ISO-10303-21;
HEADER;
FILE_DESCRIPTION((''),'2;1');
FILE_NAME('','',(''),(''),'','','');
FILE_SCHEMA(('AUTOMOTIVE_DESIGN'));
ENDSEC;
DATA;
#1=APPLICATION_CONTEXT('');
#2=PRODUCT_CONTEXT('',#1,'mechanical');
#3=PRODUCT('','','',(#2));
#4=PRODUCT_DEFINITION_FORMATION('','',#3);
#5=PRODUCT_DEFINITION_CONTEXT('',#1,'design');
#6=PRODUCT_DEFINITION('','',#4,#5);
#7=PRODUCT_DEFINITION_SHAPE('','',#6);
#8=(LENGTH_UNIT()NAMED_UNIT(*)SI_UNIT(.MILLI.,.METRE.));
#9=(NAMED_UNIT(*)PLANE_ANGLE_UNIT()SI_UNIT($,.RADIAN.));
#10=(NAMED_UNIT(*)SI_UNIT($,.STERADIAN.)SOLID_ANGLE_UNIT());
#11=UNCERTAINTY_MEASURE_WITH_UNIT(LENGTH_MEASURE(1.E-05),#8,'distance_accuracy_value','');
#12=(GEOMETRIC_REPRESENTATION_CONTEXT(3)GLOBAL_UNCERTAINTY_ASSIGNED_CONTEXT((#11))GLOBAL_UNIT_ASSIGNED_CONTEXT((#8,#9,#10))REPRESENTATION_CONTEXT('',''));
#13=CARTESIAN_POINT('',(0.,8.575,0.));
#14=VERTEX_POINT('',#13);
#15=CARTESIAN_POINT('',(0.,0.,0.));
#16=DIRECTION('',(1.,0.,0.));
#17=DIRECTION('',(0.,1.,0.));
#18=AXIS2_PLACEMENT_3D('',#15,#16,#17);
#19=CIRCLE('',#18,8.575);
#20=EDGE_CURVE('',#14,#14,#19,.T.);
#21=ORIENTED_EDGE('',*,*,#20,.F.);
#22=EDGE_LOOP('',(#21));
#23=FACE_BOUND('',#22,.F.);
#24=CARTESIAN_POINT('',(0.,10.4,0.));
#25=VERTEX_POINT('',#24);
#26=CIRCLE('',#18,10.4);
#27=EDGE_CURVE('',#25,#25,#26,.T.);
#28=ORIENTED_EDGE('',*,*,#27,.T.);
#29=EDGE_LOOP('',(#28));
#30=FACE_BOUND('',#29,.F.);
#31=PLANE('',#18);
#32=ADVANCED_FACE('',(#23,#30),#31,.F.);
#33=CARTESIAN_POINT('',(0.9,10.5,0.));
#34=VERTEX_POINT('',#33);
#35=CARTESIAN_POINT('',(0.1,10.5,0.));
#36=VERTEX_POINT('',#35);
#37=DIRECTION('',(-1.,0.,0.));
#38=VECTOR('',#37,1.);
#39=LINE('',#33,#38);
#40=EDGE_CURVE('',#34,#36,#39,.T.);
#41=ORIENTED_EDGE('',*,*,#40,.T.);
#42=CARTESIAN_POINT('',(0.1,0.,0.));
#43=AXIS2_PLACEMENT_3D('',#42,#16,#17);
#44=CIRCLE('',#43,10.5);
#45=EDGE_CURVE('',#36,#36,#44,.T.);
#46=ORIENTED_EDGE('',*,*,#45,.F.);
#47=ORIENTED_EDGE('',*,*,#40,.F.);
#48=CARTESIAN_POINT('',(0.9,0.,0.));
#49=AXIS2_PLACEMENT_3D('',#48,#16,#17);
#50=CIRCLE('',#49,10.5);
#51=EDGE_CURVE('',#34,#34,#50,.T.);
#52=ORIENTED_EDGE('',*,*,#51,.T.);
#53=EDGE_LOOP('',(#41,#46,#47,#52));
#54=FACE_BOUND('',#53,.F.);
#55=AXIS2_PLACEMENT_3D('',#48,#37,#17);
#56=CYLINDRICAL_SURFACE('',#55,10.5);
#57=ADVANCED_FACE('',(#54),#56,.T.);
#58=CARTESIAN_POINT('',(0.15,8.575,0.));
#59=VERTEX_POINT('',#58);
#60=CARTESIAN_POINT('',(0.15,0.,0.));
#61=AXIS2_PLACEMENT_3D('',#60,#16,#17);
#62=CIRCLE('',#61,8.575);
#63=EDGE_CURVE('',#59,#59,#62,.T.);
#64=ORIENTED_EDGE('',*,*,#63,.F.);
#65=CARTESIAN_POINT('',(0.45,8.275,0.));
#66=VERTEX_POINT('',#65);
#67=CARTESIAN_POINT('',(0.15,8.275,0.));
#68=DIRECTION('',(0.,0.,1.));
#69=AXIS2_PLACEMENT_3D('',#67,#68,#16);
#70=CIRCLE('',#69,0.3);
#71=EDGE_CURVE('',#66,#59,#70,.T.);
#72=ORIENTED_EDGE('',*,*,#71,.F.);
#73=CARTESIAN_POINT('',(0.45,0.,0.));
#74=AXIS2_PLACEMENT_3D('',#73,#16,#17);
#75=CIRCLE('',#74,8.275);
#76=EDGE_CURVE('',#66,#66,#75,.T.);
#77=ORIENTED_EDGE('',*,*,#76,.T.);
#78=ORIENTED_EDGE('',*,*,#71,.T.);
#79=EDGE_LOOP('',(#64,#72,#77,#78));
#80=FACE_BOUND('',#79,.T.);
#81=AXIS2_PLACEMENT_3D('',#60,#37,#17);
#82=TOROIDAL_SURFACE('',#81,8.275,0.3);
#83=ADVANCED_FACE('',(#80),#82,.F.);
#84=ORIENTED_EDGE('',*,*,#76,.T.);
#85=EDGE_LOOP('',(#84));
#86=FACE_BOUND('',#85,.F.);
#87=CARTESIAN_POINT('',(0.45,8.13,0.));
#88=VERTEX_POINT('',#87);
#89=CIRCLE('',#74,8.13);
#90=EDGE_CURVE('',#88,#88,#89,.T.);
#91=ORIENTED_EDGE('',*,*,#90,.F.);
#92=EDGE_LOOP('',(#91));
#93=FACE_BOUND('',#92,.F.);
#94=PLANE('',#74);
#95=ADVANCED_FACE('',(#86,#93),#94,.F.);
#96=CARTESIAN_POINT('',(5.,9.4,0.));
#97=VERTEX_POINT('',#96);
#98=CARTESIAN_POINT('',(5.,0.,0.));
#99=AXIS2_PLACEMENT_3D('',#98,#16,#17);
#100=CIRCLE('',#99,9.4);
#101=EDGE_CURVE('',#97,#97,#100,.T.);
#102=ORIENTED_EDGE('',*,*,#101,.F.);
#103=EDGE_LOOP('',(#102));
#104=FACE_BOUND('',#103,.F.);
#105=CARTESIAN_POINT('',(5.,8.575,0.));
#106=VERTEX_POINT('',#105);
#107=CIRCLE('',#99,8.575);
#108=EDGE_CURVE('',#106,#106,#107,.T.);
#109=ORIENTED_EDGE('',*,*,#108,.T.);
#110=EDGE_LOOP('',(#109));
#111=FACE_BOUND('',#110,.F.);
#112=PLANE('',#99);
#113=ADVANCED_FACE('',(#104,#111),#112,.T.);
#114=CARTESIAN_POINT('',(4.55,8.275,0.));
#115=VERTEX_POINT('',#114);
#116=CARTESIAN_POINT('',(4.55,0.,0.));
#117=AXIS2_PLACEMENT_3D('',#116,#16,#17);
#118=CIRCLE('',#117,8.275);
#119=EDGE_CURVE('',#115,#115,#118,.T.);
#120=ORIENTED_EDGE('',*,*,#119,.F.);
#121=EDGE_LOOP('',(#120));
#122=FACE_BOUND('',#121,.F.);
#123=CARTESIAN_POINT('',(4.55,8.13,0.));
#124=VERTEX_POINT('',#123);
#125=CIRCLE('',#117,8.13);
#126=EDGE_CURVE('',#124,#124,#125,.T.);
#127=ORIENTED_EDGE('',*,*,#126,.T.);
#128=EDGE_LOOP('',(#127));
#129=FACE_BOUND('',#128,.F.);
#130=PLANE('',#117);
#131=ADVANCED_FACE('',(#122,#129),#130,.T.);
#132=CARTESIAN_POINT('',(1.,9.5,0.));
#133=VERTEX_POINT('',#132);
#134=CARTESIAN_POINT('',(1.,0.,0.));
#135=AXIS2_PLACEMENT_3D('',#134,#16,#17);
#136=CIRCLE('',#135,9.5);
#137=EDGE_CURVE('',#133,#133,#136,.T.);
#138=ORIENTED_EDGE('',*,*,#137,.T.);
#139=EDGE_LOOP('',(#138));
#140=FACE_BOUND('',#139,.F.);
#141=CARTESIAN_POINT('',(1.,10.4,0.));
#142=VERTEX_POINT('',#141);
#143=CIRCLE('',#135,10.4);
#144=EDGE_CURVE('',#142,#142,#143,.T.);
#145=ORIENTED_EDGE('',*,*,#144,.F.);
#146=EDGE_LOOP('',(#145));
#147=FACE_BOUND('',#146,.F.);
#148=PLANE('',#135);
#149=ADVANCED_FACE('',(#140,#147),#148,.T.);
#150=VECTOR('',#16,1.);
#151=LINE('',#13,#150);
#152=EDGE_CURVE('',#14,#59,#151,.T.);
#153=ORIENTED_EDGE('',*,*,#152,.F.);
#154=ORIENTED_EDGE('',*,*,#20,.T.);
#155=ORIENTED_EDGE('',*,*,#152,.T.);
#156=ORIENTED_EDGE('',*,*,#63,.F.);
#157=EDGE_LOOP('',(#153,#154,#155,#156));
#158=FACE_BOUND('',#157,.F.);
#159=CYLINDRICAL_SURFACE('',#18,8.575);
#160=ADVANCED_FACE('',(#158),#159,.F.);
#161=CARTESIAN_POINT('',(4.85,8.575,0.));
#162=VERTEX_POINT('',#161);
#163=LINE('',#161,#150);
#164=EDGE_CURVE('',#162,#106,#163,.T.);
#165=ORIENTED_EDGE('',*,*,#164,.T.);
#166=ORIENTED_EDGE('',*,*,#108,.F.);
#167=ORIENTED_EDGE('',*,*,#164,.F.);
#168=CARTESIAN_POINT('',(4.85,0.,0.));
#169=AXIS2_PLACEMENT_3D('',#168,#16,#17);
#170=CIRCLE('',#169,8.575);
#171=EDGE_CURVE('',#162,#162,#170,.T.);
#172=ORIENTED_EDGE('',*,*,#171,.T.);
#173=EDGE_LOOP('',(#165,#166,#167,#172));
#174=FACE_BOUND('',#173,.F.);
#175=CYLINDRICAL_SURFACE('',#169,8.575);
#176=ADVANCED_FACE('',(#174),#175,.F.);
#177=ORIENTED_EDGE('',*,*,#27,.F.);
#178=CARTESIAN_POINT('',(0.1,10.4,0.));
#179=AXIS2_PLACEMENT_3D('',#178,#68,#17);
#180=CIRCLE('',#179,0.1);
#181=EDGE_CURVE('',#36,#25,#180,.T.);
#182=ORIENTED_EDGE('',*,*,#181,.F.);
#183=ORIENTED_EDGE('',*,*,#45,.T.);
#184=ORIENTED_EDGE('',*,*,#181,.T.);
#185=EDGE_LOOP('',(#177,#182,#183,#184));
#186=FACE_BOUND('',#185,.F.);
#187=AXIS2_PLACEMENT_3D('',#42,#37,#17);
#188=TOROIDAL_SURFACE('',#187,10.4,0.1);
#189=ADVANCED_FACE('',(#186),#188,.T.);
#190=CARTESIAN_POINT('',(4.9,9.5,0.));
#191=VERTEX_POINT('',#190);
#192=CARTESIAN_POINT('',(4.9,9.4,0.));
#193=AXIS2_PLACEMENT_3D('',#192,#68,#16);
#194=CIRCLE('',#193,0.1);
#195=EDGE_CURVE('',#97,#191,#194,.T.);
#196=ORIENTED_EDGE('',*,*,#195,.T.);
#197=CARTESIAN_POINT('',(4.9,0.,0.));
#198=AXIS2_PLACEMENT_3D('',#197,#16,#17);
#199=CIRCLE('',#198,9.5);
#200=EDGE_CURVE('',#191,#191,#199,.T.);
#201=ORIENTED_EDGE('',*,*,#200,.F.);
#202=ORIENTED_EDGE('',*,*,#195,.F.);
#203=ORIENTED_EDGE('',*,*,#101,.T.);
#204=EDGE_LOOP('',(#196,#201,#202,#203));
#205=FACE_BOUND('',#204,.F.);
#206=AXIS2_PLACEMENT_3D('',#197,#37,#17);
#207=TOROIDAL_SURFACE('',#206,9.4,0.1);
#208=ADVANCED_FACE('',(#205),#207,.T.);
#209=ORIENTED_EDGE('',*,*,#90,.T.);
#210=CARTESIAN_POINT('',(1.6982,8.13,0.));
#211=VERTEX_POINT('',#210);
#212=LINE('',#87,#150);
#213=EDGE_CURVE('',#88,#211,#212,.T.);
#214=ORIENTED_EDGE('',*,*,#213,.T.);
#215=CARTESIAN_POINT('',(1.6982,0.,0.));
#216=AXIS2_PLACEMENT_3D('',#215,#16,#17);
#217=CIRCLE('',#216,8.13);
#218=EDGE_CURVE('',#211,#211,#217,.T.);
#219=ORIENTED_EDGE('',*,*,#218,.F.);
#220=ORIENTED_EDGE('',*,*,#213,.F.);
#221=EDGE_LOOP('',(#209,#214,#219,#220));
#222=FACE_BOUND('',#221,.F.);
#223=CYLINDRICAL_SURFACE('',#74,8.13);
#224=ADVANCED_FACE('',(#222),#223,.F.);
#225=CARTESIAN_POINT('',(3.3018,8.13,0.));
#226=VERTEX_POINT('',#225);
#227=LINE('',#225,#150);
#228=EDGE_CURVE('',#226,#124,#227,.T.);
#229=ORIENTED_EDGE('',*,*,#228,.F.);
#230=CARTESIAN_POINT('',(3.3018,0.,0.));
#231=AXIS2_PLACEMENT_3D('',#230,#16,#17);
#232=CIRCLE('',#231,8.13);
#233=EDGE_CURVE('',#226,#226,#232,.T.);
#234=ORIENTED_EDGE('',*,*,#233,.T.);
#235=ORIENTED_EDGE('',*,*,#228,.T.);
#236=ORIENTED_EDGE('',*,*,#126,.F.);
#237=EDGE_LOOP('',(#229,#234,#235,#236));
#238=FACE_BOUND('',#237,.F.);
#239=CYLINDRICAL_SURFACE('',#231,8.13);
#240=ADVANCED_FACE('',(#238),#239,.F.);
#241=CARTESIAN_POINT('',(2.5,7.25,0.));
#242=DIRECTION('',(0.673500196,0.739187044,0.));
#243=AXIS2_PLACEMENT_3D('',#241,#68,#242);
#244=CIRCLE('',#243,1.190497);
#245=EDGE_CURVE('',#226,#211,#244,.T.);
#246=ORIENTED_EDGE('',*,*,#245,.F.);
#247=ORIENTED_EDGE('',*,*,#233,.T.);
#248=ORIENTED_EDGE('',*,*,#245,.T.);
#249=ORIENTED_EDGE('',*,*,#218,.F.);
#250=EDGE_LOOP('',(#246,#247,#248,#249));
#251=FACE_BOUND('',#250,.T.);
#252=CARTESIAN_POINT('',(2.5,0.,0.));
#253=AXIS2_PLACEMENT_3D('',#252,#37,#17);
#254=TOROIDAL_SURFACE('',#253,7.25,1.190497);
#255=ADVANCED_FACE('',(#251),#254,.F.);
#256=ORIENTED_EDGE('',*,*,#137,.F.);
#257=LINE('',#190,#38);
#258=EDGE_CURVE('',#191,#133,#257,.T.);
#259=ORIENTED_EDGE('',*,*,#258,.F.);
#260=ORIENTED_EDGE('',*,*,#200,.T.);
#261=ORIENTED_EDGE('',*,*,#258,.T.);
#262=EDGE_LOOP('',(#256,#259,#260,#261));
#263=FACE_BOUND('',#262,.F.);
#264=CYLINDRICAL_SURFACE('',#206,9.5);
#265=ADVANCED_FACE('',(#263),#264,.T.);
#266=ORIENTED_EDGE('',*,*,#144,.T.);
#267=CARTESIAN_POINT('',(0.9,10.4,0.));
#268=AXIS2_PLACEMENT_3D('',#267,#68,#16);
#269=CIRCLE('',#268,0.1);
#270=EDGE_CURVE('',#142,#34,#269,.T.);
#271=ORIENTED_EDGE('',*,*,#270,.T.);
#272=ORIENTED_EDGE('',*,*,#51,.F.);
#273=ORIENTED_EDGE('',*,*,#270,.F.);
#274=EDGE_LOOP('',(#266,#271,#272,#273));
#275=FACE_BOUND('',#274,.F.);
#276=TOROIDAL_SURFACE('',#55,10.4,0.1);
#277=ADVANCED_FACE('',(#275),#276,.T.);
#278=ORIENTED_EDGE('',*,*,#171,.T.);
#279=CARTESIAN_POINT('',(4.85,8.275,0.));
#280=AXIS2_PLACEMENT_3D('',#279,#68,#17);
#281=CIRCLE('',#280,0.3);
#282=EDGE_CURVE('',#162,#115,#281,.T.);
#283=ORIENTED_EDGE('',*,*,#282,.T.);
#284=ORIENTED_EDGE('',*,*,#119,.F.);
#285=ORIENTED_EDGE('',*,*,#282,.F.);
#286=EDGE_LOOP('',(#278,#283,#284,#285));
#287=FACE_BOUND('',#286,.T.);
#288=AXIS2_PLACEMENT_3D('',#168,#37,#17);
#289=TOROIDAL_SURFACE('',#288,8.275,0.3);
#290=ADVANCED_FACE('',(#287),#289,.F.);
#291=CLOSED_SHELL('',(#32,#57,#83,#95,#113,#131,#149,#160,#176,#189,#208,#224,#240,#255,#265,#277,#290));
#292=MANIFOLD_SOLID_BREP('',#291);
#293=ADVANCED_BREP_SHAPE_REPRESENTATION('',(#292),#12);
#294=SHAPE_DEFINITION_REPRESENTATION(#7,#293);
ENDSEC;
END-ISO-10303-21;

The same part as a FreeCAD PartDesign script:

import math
import FreeCAD as App
import Part
import Sketcher
Q = App.Units.Quantity

doc = App.newDocument("Part")
params = doc.addObject("Spreadsheet::Sheet", "Params")
for row, (alias, value) in enumerate([
    ("sketch1_radius", "0.1 mm"),
    ("sketch1_radius2", "0.3 mm"),
    ("sketch1_width", "3.9 mm"),
    ("sketch1_width2", "0.8 mm"),
    ("sketch1_height", "0.9 mm"),
    ("revolution_angle", "360 deg"),
], start=1):
    params.set(f"A{row}", alias)
    params.set(f"B{row}", "=" + value)
    params.setAlias(f"B{row}", alias)

body = doc.addObject("PartDesign::Body", "Body")

# Sketch on XY plane
sketch1 = body.newObject("Sketcher::SketchObject", "Sketch")
sketch1.AttachmentSupport = (doc.getObject("XY_Plane"), [""])
sketch1.MapMode = "FlatFace"
sketch1.addGeometry([
    Part.ArcOfCircle(Part.Circle(App.Vector(0.1, 10.4, 0), App.Vector(0, 0, 1), 0.1), math.radians(90), math.radians(180)),  # 0
    Part.LineSegment(App.Vector(0, 10.4, 0), App.Vector(0, 8.57, 0)),  # 1
    Part.LineSegment(App.Vector(0, 8.57, 0), App.Vector(0.15, 8.57, 0)),  # 2
    Part.ArcOfCircle(Part.Circle(App.Vector(0.15, 8.28, 0), App.Vector(0, 0, 1), 0.3), math.radians(0), math.radians(90)),  # 3
    Part.LineSegment(App.Vector(0.45, 8.28, 0), App.Vector(0.45, 8.13, 0)),  # 4
    Part.LineSegment(App.Vector(0.45, 8.13, 0), App.Vector(1.7, 8.13, 0)),  # 5
    Part.ArcOfCircle(Part.Circle(App.Vector(2.5, 7.25, 0), App.Vector(0, 0, 1), 1.19), math.radians(48), math.radians(132)),  # 6
    Part.LineSegment(App.Vector(3.3, 8.13, 0), App.Vector(4.55, 8.13, 0)),  # 7
    Part.LineSegment(App.Vector(4.55, 8.13, 0), App.Vector(4.55, 8.28, 0)),  # 8
    Part.ArcOfCircle(Part.Circle(App.Vector(4.85, 8.28, 0), App.Vector(0, 0, 1), 0.3), math.radians(90), math.radians(180)),  # 9
    Part.LineSegment(App.Vector(4.85, 8.57, 0), App.Vector(5, 8.57, 0)),  # 10
    Part.LineSegment(App.Vector(5, 8.57, 0), App.Vector(5, 9.4, 0)),  # 11
    Part.ArcOfCircle(Part.Circle(App.Vector(4.9, 9.4, 0), App.Vector(0, 0, 1), 0.1), math.radians(0), math.radians(90)),  # 12
    Part.LineSegment(App.Vector(4.9, 9.5, 0), App.Vector(1, 9.5, 0)),  # 13
    Part.LineSegment(App.Vector(1, 9.5, 0), App.Vector(1, 10.4, 0)),  # 14
    Part.ArcOfCircle(Part.Circle(App.Vector(0.9, 10.4, 0), App.Vector(0, 0, 1), 0.1), math.radians(0), math.radians(90)),  # 15
    Part.LineSegment(App.Vector(0.9, 10.5, 0), App.Vector(0.1, 10.5, 0)),  # 16
], False)
sketch1.addConstraint([
    Sketcher.Constraint("Tangent", 0, 2, 1, 1),
    Sketcher.Constraint("Coincident", 1, 2, 2, 1),
    Sketcher.Constraint("Tangent", 2, 2, 3, 2),
    Sketcher.Constraint("Tangent", 3, 1, 4, 1),
    Sketcher.Constraint("Coincident", 4, 2, 5, 1),
    Sketcher.Constraint("Coincident", 5, 2, 6, 2),
    Sketcher.Constraint("Coincident", 6, 1, 7, 1),
    Sketcher.Constraint("Coincident", 7, 2, 8, 1),
    Sketcher.Constraint("Tangent", 8, 2, 9, 2),
    Sketcher.Constraint("Tangent", 9, 1, 10, 1),
    Sketcher.Constraint("Coincident", 10, 2, 11, 1),
    Sketcher.Constraint("Tangent", 11, 2, 12, 1),
    Sketcher.Constraint("Tangent", 12, 2, 13, 1),
    Sketcher.Constraint("Coincident", 13, 2, 14, 1),
    Sketcher.Constraint("Tangent", 14, 2, 15, 1),
    Sketcher.Constraint("Tangent", 15, 2, 16, 1),
    Sketcher.Constraint("Tangent", 16, 2, 0, 1),
    Sketcher.Constraint("Vertical", 1),
    Sketcher.Constraint("Horizontal", 2),
    Sketcher.Constraint("Vertical", 4),
    Sketcher.Constraint("Horizontal", 5),
    Sketcher.Constraint("Horizontal", 7),
    Sketcher.Constraint("Vertical", 8),
    Sketcher.Constraint("Horizontal", 10),
    Sketcher.Constraint("Vertical", 11),
    Sketcher.Constraint("Horizontal", 13),
    Sketcher.Constraint("Vertical", 14),
    Sketcher.Constraint("Horizontal", 16),
    Sketcher.Constraint("Equal", 3, 9),
    Sketcher.Constraint("Equal", 0, 12),
    Sketcher.Constraint("Equal", 12, 15),
    Sketcher.Constraint("PointOnObject", 0, 2, -2),
    Sketcher.Constraint("Horizontal", 3, 3, 9, 3),
    Sketcher.Constraint("Horizontal", 5, 2, 6, 1),
    Sketcher.Constraint("Equal", 5, 7),
    Sketcher.Constraint("Equal", 2, 10),
    Sketcher.Constraint("Radius", 0, Q("0.1 mm")),
    Sketcher.Constraint("Radius", 3, Q("0.3 mm")),
    Sketcher.Constraint("DistanceX", 13, 2, 13, 1, Q("3.9 mm")),
    Sketcher.Constraint("DistanceX", 16, 2, 16, 1, Q("0.8 mm")),
    Sketcher.Constraint("DistanceY", 14, 1, 14, 2, Q("0.9 mm")),
    Sketcher.Constraint("DistanceX", 2, 1, 2, 2, Q("0.15 mm")),
    Sketcher.Constraint("DistanceY", -1, 1, 0, 3, Q("10.4 mm")),
    Sketcher.Constraint("Radius", 6, Q("1.1905 mm")),
    Sketcher.Constraint("DistanceY", 1, 2, 1, 1, Q("1.825 mm")),
    Sketcher.Constraint("DistanceY", 4, 2, 4, 1, Q("0.145 mm")),
    Sketcher.Constraint("DistanceY", -1, 1, 6, 3, Q("7.25 mm")),
])
sketch1.setExpression("Constraints[36]", "Params.sketch1_radius")
sketch1.setExpression("Constraints[37]", "Params.sketch1_radius2")
sketch1.setExpression("Constraints[38]", "Params.sketch1_width")
sketch1.setExpression("Constraints[39]", "Params.sketch1_width2")
sketch1.setExpression("Constraints[40]", "Params.sketch1_height")
revolution = body.newObject("PartDesign::Revolution", "Revolution")
revolution.Profile = sketch1
revolution.ReferenceAxis = (sketch1, ["H_Axis"])
revolution.setExpression("Angle", "Params.revolution_angle")

doc.recompute()
